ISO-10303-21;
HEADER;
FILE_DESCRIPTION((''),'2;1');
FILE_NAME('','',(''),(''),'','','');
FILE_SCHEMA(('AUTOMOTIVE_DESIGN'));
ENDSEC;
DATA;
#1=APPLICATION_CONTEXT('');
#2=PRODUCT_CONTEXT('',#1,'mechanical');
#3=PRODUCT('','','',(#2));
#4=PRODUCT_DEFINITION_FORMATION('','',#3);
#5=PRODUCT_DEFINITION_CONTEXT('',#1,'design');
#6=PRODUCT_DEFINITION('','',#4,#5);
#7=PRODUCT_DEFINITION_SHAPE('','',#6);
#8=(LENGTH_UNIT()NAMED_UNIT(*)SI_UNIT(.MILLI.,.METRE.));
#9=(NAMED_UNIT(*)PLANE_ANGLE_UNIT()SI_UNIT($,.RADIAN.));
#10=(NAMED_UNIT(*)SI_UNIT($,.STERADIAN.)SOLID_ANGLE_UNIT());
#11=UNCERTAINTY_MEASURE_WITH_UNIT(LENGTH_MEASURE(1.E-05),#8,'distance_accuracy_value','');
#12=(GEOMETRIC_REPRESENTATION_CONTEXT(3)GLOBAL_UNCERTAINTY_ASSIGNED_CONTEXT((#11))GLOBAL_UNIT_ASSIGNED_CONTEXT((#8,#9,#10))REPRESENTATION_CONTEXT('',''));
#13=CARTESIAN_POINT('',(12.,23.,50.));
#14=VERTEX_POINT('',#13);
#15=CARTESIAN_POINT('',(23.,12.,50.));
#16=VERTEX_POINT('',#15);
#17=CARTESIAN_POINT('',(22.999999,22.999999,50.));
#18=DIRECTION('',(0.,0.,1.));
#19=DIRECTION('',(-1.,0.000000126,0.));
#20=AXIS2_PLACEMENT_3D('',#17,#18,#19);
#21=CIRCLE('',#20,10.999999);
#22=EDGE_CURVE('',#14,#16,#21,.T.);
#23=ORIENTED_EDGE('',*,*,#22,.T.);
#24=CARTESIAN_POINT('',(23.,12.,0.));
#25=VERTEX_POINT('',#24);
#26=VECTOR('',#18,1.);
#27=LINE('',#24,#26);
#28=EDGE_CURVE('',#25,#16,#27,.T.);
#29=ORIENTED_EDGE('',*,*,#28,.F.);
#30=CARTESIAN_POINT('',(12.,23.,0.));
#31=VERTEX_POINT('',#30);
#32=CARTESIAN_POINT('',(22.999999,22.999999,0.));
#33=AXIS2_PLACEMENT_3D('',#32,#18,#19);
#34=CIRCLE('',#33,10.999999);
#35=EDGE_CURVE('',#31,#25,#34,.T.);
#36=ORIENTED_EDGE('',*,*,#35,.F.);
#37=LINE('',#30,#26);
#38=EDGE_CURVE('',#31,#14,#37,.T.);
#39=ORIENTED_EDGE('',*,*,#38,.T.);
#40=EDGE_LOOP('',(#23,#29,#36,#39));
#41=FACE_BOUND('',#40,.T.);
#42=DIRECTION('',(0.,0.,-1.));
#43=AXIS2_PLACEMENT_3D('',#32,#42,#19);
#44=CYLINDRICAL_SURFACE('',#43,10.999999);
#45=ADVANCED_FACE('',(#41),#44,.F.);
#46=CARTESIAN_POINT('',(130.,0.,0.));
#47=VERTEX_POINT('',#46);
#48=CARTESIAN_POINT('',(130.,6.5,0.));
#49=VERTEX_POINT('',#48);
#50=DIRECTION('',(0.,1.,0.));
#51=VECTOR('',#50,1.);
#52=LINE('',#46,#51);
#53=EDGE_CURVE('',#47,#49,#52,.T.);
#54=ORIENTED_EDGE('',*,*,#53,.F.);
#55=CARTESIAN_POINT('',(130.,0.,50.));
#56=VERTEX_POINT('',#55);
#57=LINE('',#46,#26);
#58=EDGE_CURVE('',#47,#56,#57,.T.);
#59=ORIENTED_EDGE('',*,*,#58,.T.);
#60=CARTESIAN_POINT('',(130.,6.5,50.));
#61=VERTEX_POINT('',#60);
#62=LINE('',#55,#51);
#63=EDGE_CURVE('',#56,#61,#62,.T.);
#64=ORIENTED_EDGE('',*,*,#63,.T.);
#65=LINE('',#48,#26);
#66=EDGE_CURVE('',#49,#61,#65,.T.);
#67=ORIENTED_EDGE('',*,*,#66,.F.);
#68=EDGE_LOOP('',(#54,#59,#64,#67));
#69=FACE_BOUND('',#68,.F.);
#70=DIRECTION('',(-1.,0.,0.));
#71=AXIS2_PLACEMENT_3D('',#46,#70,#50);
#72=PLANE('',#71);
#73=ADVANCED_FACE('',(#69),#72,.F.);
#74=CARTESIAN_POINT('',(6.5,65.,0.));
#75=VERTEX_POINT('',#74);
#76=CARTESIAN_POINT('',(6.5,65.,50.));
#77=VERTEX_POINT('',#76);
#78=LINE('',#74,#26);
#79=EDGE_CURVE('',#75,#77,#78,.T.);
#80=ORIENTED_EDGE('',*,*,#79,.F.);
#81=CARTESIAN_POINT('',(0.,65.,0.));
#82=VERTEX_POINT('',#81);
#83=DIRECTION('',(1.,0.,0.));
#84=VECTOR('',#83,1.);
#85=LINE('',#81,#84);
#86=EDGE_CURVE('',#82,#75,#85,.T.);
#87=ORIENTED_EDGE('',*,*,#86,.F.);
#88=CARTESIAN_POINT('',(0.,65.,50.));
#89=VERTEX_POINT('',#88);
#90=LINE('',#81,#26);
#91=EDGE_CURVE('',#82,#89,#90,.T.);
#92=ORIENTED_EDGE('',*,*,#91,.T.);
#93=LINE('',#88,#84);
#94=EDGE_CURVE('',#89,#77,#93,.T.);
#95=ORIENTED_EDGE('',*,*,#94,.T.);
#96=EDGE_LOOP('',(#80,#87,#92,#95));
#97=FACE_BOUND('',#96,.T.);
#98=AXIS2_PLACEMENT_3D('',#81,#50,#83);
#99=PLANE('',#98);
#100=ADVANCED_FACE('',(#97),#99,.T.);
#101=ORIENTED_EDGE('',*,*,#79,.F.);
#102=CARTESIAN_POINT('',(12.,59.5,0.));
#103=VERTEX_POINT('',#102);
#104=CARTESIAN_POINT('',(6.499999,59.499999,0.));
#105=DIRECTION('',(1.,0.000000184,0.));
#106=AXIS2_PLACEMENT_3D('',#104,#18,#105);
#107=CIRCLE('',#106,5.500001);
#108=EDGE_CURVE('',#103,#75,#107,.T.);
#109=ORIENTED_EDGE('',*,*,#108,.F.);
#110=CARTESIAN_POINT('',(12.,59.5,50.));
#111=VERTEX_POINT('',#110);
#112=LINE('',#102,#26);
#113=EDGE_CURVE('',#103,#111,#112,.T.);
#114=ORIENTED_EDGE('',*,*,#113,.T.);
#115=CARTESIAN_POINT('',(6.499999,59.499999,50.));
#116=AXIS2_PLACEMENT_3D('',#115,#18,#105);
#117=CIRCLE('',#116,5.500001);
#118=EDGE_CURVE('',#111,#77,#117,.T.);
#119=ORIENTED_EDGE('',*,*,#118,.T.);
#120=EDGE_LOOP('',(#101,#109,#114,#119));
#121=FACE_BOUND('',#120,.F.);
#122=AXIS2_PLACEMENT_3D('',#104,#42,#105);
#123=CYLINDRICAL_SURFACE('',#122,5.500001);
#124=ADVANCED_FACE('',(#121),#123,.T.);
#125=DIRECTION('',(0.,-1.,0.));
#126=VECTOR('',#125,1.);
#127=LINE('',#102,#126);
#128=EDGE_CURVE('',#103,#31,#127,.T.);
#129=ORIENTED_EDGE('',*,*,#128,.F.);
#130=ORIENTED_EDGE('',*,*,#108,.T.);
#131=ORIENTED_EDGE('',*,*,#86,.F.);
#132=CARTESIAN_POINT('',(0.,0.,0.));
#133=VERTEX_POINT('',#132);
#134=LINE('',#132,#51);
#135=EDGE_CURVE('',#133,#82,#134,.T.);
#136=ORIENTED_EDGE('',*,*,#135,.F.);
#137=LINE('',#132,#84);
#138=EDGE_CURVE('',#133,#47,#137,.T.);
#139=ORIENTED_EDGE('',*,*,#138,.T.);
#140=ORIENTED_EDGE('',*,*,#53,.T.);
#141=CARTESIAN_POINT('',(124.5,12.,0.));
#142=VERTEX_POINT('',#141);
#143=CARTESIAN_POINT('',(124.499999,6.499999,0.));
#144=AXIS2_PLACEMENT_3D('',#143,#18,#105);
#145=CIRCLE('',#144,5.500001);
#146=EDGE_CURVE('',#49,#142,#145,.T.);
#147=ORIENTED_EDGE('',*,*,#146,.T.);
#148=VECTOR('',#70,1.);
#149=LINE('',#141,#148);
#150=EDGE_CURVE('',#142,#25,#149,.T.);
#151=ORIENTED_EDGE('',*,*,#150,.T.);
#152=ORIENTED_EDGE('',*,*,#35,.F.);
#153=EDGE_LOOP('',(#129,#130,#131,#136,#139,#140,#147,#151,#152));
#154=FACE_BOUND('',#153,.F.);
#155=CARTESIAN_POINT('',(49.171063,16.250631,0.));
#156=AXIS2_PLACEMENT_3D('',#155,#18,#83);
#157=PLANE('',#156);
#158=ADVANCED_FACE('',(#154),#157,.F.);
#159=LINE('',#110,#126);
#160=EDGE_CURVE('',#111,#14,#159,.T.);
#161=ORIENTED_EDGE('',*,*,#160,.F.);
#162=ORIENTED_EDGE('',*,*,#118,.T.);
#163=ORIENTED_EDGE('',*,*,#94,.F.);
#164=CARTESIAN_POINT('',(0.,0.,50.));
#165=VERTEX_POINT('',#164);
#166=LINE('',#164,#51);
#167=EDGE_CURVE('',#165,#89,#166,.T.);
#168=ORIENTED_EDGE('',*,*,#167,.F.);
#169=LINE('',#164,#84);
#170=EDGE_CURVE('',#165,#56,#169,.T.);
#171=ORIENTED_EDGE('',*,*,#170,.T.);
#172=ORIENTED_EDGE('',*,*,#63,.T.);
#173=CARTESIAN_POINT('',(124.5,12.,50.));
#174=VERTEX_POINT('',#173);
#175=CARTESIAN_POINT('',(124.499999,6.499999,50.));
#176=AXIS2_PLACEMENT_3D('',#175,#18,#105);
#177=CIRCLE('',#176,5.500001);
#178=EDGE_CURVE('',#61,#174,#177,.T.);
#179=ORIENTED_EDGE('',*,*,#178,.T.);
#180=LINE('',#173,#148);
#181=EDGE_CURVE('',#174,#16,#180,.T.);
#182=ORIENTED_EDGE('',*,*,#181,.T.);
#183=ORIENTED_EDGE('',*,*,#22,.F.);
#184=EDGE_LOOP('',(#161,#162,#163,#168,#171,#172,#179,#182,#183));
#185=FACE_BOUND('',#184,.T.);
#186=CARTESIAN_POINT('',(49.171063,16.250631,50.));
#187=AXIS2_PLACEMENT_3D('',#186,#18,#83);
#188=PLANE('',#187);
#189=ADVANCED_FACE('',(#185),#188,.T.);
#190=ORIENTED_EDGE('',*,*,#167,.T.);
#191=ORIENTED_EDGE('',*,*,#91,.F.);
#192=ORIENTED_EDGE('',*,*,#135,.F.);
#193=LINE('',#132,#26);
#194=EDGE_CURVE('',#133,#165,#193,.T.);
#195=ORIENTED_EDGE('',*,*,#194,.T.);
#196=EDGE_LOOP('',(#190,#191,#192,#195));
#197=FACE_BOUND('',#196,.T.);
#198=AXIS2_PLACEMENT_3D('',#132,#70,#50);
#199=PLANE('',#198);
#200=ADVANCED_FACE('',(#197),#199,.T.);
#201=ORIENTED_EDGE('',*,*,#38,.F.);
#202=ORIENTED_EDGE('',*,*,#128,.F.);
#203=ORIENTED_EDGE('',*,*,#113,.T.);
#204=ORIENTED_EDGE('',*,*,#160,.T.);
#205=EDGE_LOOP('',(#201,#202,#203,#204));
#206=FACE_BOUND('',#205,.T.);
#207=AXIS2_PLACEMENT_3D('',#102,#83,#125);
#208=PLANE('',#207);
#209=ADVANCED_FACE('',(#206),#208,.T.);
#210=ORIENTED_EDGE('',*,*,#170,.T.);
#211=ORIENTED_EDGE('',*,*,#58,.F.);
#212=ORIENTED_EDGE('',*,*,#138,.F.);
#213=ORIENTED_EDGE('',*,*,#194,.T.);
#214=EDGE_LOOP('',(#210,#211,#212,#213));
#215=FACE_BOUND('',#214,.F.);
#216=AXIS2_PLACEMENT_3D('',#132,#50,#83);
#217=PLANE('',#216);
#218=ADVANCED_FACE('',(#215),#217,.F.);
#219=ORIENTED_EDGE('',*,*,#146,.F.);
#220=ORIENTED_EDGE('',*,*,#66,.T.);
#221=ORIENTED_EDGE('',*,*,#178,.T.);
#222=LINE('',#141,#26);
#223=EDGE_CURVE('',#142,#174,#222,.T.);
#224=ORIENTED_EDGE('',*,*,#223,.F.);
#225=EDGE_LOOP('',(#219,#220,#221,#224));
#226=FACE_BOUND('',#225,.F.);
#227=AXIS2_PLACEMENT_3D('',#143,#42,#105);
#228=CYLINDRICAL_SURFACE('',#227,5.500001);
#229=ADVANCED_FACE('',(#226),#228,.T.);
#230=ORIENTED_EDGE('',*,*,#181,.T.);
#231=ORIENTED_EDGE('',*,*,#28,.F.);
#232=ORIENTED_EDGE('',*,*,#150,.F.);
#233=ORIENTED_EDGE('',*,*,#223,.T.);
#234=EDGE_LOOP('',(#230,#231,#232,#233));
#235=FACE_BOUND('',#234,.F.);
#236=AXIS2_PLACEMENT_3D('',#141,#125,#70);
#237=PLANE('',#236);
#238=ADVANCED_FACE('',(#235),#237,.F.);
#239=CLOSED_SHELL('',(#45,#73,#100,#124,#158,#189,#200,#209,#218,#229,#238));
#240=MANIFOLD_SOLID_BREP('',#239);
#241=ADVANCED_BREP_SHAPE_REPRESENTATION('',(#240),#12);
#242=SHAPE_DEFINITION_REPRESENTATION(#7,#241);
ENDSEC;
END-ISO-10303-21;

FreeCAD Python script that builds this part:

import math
import FreeCAD as App
import Part
import Sketcher

doc = App.newDocument("Part")
body = doc.addObject("PartDesign::Body", "Body")

# Sketch on XY plane
sketch1 = body.newObject("Sketcher::SketchObject", "Sketch")
sketch1.AttachmentSupport = (doc.getObject("XY_Plane"), [""])
sketch1.MapMode = "FlatFace"
sketch1.addGeometry([
    Part.LineSegment(App.Vector(0, 0, 0), App.Vector(130, 0, 0)),  # 0
    Part.LineSegment(App.Vector(130, 0, 0), App.Vector(130, 6, 0)),  # 1
    Part.ArcOfCircle(Part.Circle(App.Vector(124, 6, 0), App.Vector(0, 0, 1), 6), math.radians(0), math.radians(90)),  # 2
    Part.LineSegment(App.Vector(124, 12, 0), App.Vector(23, 12, 0)),  # 3
    Part.ArcOfCircle(Part.Circle(App.Vector(23, 23, 0), App.Vector(0, 0, 1), 11), math.radians(180), math.radians(270)),  # 4
    Part.LineSegment(App.Vector(12, 23, 0), App.Vector(12, 60, 0)),  # 5
    Part.ArcOfCircle(Part.Circle(App.Vector(6, 59, 0), App.Vector(0, 0, 1), 6), math.radians(0), math.radians(90)),  # 6
    Part.LineSegment(App.Vector(6, 65, 0), App.Vector(0, 65, 0)),  # 7
    Part.LineSegment(App.Vector(0, 65, 0), App.Vector(0, 0, 0)),  # 8
], False)
sketch1.addConstraint([
    Sketcher.Constraint("Coincident", 0, 2, 1, 1),
    Sketcher.Constraint("Tangent", 1, 2, 2, 1),
    Sketcher.Constraint("Tangent", 2, 2, 3, 1),
    Sketcher.Constraint("Tangent", 3, 2, 4, 2),
    Sketcher.Constraint("Tangent", 4, 1, 5, 1),
    Sketcher.Constraint("Tangent", 5, 2, 6, 1),
    Sketcher.Constraint("Tangent", 6, 2, 7, 1),
    Sketcher.Constraint("Coincident", 7, 2, 8, 1),
    Sketcher.Constraint("Coincident", 8, 2, 0, 1),
    Sketcher.Constraint("Horizontal", 0),
    Sketcher.Constraint("Vertical", 1),
    Sketcher.Constraint("Horizontal", 3),
    Sketcher.Constraint("Vertical", 5),
    Sketcher.Constraint("Horizontal", 7),
    Sketcher.Constraint("Vertical", 8),
    Sketcher.Constraint("Coincident", 8, 2, -1, 1),
    Sketcher.Constraint("Equal", 2, 6),
    Sketcher.Constraint("Equal", 7, 1),
    Sketcher.Constraint("Radius", 4, 10.999999),
    Sketcher.Constraint("Radius", 2, 5.500001),
    Sketcher.Constraint("DistanceX", 0, 1, 0, 2, 130.0),
    Sketcher.Constraint("DistanceY", 8, 2, 8, 1, 65.0),
    Sketcher.Constraint("DistanceX", 3, 2, 3, 1, 101.5),
])
pad1 = body.newObject("PartDesign::Pad", "Pad")
pad1.Profile = sketch1
pad1.Length = 50

doc.recompute()
